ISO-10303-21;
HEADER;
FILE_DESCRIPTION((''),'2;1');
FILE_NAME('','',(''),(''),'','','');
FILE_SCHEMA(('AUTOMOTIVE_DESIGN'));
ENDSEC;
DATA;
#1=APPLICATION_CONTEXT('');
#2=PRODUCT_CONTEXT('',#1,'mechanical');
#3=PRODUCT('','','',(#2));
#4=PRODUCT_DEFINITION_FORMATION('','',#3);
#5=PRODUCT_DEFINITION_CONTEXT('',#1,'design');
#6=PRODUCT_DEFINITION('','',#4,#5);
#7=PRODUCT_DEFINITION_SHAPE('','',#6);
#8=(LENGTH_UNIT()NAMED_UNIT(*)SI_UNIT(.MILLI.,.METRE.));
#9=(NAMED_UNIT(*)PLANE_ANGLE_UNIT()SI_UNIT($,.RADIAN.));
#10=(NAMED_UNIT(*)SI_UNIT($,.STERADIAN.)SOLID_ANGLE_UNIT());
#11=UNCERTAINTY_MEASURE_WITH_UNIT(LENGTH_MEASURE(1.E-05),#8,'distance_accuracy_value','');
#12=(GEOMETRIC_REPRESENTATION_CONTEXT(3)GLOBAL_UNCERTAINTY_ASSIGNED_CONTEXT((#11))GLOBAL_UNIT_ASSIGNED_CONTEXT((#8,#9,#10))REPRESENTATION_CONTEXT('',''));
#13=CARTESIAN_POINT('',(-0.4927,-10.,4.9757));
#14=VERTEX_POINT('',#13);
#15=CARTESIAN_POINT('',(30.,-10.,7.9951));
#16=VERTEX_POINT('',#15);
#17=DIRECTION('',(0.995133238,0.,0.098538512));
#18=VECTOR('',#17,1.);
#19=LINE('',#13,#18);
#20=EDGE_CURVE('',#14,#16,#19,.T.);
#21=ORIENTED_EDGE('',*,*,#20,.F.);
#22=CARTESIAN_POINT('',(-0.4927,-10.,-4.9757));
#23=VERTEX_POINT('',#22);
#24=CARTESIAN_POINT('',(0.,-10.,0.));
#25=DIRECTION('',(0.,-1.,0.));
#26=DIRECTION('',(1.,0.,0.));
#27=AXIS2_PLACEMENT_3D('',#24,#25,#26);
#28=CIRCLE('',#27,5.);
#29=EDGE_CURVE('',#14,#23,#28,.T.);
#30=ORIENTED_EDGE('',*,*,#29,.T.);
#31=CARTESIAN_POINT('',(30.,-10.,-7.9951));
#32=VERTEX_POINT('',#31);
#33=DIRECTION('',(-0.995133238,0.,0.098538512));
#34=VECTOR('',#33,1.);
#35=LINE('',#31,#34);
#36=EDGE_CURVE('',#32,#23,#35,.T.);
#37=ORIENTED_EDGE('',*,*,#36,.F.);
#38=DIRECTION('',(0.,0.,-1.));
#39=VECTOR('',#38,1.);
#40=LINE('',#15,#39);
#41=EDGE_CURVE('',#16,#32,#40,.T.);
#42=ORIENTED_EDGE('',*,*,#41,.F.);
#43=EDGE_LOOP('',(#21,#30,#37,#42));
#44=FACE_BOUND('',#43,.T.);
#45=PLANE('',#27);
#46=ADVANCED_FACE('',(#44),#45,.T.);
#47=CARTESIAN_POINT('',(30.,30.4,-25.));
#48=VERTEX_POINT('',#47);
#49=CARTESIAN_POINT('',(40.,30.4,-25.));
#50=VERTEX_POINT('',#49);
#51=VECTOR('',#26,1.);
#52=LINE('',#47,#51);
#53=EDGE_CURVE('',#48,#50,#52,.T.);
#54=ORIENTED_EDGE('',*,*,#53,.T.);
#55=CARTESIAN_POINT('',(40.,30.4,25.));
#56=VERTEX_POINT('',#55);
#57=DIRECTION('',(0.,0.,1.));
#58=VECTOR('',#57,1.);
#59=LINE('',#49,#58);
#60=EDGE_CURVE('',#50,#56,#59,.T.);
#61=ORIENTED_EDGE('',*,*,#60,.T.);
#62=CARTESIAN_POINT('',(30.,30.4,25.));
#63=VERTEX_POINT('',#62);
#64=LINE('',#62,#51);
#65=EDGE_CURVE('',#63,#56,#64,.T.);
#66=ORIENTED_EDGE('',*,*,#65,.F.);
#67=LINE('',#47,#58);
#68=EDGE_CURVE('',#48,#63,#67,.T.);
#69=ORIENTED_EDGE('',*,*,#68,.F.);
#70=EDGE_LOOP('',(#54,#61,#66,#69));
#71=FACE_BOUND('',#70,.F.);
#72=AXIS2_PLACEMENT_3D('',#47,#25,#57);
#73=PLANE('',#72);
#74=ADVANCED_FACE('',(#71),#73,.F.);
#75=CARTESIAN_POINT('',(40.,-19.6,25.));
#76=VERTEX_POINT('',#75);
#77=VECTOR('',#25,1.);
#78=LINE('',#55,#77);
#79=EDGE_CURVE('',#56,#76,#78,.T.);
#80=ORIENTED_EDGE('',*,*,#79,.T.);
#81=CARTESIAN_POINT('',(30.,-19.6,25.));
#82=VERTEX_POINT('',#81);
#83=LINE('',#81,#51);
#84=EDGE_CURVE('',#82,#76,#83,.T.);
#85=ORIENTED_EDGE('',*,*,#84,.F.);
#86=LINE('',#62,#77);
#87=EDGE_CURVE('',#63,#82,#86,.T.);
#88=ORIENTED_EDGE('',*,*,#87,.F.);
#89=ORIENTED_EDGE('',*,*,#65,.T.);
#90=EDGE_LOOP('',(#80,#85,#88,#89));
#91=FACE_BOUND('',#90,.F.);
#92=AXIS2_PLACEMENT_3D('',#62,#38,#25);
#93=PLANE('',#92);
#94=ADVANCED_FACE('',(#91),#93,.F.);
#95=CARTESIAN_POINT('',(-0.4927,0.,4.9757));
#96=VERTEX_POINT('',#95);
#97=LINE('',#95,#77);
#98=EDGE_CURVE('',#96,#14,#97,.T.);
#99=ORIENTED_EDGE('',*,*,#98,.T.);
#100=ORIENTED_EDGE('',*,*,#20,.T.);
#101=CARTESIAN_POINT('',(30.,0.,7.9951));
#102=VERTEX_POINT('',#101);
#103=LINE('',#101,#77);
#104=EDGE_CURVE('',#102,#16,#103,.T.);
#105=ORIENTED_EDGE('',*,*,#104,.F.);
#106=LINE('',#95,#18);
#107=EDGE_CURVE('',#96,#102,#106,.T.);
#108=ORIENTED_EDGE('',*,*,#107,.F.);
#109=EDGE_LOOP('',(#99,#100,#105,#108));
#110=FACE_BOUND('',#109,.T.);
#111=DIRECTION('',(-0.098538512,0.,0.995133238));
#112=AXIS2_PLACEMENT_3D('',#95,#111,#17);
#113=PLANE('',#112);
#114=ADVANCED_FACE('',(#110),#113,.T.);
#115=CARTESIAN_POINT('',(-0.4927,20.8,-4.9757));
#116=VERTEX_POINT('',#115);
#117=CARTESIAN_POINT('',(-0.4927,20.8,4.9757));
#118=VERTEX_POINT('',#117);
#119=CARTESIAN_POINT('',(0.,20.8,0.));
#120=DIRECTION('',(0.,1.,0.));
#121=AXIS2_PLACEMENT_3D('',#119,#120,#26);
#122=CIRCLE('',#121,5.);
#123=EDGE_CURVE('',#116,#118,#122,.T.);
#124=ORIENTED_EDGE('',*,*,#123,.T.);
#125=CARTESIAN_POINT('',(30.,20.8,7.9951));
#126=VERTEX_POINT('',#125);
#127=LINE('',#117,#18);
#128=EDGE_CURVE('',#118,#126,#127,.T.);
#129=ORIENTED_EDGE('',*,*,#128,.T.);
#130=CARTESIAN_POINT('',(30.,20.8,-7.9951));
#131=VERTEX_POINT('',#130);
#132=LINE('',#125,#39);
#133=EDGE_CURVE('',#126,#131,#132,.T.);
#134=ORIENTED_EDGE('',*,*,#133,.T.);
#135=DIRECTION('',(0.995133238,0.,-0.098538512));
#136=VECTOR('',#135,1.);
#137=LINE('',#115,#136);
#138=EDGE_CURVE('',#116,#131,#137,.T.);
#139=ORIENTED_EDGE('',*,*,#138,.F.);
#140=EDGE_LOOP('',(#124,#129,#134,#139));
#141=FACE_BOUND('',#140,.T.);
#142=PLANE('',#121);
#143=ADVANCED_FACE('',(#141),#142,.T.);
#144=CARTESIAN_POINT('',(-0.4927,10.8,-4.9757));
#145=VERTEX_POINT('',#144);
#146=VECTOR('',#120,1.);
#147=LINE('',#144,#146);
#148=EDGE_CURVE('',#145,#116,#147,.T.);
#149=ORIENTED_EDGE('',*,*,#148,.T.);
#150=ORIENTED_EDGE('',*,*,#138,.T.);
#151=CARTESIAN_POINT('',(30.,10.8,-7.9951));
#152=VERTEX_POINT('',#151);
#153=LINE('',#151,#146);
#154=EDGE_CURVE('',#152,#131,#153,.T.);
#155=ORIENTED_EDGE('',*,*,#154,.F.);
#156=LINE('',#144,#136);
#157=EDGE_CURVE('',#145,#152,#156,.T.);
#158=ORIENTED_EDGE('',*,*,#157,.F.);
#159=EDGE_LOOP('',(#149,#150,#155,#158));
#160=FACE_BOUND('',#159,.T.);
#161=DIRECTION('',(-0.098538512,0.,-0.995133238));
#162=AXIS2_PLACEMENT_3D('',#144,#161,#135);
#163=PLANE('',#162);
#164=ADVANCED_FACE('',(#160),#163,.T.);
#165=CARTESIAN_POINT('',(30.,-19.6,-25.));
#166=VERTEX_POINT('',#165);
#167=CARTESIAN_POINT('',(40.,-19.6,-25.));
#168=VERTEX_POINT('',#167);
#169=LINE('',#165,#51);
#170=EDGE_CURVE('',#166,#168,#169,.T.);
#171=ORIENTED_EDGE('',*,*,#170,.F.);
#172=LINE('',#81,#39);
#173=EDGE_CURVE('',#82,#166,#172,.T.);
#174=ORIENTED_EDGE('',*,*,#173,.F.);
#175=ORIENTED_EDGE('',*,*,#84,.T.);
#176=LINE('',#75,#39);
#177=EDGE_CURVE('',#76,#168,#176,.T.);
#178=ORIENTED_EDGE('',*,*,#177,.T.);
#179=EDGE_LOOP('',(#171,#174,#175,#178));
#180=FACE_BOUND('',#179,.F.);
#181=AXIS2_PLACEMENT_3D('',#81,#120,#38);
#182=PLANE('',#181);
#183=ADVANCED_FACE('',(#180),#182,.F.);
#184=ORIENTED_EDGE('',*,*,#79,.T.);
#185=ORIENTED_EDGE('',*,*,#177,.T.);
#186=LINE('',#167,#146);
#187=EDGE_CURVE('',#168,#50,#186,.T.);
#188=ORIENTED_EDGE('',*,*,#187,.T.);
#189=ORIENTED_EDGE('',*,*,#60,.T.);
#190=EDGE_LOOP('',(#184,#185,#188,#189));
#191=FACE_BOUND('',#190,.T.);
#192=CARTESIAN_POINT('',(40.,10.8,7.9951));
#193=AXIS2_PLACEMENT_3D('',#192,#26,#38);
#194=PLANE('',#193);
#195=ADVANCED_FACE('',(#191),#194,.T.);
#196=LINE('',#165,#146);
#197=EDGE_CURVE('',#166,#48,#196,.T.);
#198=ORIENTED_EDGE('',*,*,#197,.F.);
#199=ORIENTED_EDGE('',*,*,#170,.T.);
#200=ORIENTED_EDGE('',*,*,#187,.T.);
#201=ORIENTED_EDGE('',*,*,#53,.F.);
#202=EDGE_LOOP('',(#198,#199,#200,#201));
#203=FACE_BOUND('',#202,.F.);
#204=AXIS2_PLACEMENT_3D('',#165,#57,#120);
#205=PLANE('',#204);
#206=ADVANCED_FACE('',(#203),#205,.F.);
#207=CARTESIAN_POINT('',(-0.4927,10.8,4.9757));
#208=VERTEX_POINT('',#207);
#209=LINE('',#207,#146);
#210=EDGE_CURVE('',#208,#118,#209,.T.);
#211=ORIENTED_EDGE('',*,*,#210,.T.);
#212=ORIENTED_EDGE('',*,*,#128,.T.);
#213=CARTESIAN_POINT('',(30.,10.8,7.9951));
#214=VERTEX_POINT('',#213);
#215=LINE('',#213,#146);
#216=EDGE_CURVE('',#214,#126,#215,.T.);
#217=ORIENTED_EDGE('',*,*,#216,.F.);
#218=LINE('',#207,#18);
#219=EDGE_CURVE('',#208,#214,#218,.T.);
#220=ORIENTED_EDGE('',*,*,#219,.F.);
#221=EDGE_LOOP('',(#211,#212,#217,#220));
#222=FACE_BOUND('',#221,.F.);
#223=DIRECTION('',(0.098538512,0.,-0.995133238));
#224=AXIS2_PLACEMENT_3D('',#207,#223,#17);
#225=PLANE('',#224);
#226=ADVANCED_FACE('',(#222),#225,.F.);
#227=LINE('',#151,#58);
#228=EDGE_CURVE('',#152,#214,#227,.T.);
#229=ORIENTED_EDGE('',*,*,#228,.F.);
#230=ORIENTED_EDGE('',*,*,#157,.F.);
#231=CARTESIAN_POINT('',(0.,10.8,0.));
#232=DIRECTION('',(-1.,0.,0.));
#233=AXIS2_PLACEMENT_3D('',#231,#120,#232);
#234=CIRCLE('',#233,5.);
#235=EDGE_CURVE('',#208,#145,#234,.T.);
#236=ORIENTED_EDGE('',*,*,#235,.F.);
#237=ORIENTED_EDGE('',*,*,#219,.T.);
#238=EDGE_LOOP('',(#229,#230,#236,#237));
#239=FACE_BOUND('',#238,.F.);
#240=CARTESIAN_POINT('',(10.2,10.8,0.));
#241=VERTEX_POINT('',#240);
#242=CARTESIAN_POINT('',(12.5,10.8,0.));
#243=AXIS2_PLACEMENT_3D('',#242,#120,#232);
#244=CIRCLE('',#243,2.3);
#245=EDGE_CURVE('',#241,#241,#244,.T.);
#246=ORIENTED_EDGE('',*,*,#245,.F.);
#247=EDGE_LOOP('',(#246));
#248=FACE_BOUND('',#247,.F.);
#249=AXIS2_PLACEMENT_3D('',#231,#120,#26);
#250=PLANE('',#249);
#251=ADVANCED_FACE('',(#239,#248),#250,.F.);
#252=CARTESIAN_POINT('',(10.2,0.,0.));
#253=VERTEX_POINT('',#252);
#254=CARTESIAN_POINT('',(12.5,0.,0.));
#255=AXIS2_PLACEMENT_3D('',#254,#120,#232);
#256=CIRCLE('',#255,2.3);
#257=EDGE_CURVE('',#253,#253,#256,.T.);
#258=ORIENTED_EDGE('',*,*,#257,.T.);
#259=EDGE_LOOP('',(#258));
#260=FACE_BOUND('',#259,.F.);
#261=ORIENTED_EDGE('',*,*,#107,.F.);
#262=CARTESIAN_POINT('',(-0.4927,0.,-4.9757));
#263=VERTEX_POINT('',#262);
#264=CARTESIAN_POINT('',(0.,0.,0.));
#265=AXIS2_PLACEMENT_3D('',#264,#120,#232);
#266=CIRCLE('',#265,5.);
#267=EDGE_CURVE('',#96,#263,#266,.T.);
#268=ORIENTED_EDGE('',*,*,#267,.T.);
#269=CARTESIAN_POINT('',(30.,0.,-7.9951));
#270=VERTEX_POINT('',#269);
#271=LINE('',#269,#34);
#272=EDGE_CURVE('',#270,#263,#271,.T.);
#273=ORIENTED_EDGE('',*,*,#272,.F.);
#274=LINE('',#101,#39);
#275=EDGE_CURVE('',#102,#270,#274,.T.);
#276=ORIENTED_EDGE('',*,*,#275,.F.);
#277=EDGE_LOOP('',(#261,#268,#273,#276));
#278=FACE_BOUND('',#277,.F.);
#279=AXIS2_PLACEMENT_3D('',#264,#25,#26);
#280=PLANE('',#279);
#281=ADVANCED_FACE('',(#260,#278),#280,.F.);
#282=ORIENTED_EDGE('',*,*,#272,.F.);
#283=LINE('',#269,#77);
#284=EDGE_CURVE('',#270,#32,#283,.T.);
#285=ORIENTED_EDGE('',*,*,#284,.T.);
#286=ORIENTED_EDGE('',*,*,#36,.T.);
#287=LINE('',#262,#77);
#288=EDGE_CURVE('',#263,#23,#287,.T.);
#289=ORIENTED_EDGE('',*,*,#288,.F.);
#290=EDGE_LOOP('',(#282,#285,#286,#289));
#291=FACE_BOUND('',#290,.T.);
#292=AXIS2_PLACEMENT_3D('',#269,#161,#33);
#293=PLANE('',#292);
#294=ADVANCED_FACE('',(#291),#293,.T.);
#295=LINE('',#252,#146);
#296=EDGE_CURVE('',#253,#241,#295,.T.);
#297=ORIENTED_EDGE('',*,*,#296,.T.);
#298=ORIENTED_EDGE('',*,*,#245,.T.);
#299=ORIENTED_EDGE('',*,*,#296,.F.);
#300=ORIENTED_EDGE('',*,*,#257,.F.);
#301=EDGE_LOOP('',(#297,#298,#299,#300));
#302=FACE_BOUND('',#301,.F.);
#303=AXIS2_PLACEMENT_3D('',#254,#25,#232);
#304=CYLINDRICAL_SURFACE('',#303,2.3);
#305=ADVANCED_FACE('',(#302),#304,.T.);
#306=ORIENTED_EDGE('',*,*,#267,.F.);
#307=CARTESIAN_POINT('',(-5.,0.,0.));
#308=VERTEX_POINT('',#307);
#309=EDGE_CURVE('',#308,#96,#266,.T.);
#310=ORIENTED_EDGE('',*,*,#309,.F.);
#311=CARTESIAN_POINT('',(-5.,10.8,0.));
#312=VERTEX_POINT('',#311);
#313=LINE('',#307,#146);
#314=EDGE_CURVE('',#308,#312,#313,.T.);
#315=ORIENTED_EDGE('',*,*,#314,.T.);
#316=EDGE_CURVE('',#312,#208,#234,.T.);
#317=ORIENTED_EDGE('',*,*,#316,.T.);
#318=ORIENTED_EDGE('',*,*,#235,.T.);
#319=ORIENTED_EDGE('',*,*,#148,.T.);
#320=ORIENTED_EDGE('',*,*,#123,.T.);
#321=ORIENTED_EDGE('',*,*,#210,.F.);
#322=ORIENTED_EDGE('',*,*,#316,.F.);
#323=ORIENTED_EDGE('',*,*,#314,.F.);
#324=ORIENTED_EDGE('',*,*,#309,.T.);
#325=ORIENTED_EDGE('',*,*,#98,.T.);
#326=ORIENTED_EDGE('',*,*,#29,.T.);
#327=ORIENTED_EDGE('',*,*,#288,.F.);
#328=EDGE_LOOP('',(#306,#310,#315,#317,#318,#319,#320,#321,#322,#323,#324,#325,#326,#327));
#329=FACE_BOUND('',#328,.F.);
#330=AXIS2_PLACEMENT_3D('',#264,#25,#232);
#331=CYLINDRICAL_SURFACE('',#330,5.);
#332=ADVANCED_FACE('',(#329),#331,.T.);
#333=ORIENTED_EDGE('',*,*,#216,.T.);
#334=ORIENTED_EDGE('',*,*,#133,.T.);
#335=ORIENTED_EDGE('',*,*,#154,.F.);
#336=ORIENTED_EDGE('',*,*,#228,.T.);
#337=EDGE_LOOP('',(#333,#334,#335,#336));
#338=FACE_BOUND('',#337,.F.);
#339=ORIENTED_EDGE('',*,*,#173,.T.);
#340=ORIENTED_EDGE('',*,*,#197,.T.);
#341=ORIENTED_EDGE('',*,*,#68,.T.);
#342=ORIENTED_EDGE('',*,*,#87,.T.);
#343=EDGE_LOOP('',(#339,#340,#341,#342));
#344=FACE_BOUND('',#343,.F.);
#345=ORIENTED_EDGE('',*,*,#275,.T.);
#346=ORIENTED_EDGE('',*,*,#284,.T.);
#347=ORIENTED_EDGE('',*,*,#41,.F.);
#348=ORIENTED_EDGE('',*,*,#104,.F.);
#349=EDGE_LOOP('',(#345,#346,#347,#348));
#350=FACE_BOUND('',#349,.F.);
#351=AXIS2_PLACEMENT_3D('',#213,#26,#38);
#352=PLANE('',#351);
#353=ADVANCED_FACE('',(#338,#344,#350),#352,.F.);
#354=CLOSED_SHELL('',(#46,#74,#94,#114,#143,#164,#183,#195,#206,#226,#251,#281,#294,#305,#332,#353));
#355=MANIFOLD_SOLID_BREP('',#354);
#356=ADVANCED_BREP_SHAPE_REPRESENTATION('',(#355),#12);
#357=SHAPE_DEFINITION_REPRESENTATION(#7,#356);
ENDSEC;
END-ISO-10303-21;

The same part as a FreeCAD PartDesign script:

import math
import FreeCAD as App
import Part
import Sketcher

doc = App.newDocument("Part")
body = doc.addObject("PartDesign::Body", "Body")
body.AllowCompound = True

sketch1 = doc.addObject("Sketcher::SketchObject", "Sketch")
body.addObject(sketch1)
sketch1.AttachmentSupport = (doc.XZ_Plane, [""])
sketch1.MapMode = "FlatFace"
sketch1.addGeometry([
    Part.Circle(App.Vector(0, 0, 0), App.Vector(0, 0, 1), 5),
    Part.Circle(App.Vector(12.5, 0, 0), App.Vector(0, 0, 1), 2.3),
], False)
sketch1.addConstraint([
    Sketcher.Constraint("Coincident", 0, 3, -1, 1),
    Sketcher.Constraint("PointOnObject", 1, 3, -1),
    Sketcher.Constraint("Diameter", 0, 10.0),
    Sketcher.Constraint("Diameter", 1, 4.6),
    Sketcher.Constraint("DistanceX", -1, 1, 1, 3, 12.5),
])
pad1 = doc.addObject("PartDesign::Pad", "Pad")
body.addObject(pad1)
pad1.Profile = sketch1
pad1.Length = 10.8
pad1.Reversed = True

sketch2 = doc.addObject("Sketcher::SketchObject", "Sketch001")
body.addObject(sketch2)
sketch2.AttachmentSupport = (doc.XZ_Plane, [""])
sketch2.MapMode = "FlatFace"
sketch2.AttachmentOffset = App.Placement(App.Vector(0, 0, -10.8), App.Rotation())
sketch2.addGeometry([
    Part.ArcOfCircle(Part.Circle(App.Vector(0, 0, 0), App.Vector(0, 0, 1), 5), math.radians(96), math.radians(264)),
    Part.LineSegment(App.Vector(0, 5, 0), App.Vector(30, 8, 0)),
    Part.LineSegment(App.Vector(30, 8, 0), App.Vector(30, -8, 0)),
    Part.LineSegment(App.Vector(30, -8, 0), App.Vector(0, -5, 0)),
], False)
sketch2.addConstraint([
    Sketcher.Constraint("Tangent", 0, 1, 1, 1),
    Sketcher.Constraint("Coincident", 1, 2, 2, 1),
    Sketcher.Constraint("Coincident", 2, 2, 3, 1),
    Sketcher.Constraint("Tangent", 3, 2, 0, 2),
    Sketcher.Constraint("Vertical", 2),
    Sketcher.Constraint("Coincident", 0, 3, -1, 1),
    Sketcher.Constraint("Vertical", 0, 1, 3, 2),
    Sketcher.Constraint("Radius", 0, 5.0),
    Sketcher.Constraint("DistanceX", -1, 1, 1, 2, 30.0),
    Sketcher.Constraint("DistanceY", 2, 2, 2, 1, 15.9902),
])
pad2 = doc.addObject("PartDesign::Pad", "Pad001")
body.addObject(pad2)
pad2.Profile = sketch2
pad2.Length = 10
pad2.Reversed = True

sketch3 = doc.addObject("Sketcher::SketchObject", "Sketch002")
body.addObject(sketch3)
sketch3.AttachmentSupport = (doc.XZ_Plane, [""])
sketch3.MapMode = "FlatFace"
sketch3.addGeometry([
    Part.LineSegment(App.Vector(0, -5, 0), App.Vector(30, -8, 0)),
    Part.LineSegment(App.Vector(30, -8, 0), App.Vector(30, 8, 0)),
    Part.LineSegment(App.Vector(30, 8, 0), App.Vector(0, 5, 0)),
    Part.ArcOfCircle(Part.Circle(App.Vector(0, 0, 0), App.Vector(0, 0, 1), 5), math.radians(96), math.radians(264)),
], False)
sketch3.addConstraint([
    Sketcher.Constraint("Coincident", 0, 2, 1, 1),
    Sketcher.Constraint("Coincident", 1, 2, 2, 1),
    Sketcher.Constraint("Tangent", 2, 2, 3, 1),
    Sketcher.Constraint("Tangent", 3, 2, 0, 1),
    Sketcher.Constraint("Vertical", 1),
    Sketcher.Constraint("Coincident", 3, 3, -1, 1),
    Sketcher.Constraint("Vertical", 2, 2, 3, 2),
    Sketcher.Constraint("Radius", 3, 5.0),
    Sketcher.Constraint("DistanceX", -1, 1, 0, 2, 30.0),
    Sketcher.Constraint("DistanceY", 1, 1, 1, 2, 15.9902),
])
pad3 = doc.addObject("PartDesign::Pad", "Pad002")
body.addObject(pad3)
pad3.Profile = sketch3
pad3.Length = 10

sketch4 = doc.addObject("Sketcher::SketchObject", "Sketch003")
body.addObject(sketch4)
sketch4.AttachmentSupport = (doc.YZ_Plane, [""])
sketch4.MapMode = "FlatFace"
sketch4.AttachmentOffset = App.Placement(App.Vector(0, 0, 30), App.Rotation())
sketch4.addGeometry([
    Part.LineSegment(App.Vector(-20, -25, 0), App.Vector(30, -25, 0)),
    Part.LineSegment(App.Vector(30, -25, 0), App.Vector(30, 25, 0)),
    Part.LineSegment(App.Vector(30, 25, 0), App.Vector(-20, 25, 0)),
    Part.LineSegment(App.Vector(-20, 25, 0), App.Vector(-20, -25, 0)),
], False)
sketch4.addConstraint([
    Sketcher.Constraint("Coincident", 0, 2, 1, 1),
    Sketcher.Constraint("Coincident", 1, 2, 2, 1),
    Sketcher.Constraint("Coincident", 2, 2, 3, 1),
    Sketcher.Constraint("Coincident", 3, 2, 0, 1),
    Sketcher.Constraint("Horizontal", 0),
    Sketcher.Constraint("Vertical", 1),
    Sketcher.Constraint("Horizontal", 2),
    Sketcher.Constraint("Vertical", 3),
    Sketcher.Constraint("Equal", 2, 1),
    Sketcher.Constraint("DistanceX", 0, 1, 0, 2, 50.0),
    Sketcher.Constraint("DistanceY", 0, 2, -1, 1, 25.0),
    Sketcher.Constraint("DistanceX", -1, 1, 0, 2, 30.4),
])
pad4 = doc.addObject("PartDesign::Pad", "Pad003")
body.addObject(pad4)
pad4.Profile = sketch4
pad4.Length = 10

doc.recompute()
